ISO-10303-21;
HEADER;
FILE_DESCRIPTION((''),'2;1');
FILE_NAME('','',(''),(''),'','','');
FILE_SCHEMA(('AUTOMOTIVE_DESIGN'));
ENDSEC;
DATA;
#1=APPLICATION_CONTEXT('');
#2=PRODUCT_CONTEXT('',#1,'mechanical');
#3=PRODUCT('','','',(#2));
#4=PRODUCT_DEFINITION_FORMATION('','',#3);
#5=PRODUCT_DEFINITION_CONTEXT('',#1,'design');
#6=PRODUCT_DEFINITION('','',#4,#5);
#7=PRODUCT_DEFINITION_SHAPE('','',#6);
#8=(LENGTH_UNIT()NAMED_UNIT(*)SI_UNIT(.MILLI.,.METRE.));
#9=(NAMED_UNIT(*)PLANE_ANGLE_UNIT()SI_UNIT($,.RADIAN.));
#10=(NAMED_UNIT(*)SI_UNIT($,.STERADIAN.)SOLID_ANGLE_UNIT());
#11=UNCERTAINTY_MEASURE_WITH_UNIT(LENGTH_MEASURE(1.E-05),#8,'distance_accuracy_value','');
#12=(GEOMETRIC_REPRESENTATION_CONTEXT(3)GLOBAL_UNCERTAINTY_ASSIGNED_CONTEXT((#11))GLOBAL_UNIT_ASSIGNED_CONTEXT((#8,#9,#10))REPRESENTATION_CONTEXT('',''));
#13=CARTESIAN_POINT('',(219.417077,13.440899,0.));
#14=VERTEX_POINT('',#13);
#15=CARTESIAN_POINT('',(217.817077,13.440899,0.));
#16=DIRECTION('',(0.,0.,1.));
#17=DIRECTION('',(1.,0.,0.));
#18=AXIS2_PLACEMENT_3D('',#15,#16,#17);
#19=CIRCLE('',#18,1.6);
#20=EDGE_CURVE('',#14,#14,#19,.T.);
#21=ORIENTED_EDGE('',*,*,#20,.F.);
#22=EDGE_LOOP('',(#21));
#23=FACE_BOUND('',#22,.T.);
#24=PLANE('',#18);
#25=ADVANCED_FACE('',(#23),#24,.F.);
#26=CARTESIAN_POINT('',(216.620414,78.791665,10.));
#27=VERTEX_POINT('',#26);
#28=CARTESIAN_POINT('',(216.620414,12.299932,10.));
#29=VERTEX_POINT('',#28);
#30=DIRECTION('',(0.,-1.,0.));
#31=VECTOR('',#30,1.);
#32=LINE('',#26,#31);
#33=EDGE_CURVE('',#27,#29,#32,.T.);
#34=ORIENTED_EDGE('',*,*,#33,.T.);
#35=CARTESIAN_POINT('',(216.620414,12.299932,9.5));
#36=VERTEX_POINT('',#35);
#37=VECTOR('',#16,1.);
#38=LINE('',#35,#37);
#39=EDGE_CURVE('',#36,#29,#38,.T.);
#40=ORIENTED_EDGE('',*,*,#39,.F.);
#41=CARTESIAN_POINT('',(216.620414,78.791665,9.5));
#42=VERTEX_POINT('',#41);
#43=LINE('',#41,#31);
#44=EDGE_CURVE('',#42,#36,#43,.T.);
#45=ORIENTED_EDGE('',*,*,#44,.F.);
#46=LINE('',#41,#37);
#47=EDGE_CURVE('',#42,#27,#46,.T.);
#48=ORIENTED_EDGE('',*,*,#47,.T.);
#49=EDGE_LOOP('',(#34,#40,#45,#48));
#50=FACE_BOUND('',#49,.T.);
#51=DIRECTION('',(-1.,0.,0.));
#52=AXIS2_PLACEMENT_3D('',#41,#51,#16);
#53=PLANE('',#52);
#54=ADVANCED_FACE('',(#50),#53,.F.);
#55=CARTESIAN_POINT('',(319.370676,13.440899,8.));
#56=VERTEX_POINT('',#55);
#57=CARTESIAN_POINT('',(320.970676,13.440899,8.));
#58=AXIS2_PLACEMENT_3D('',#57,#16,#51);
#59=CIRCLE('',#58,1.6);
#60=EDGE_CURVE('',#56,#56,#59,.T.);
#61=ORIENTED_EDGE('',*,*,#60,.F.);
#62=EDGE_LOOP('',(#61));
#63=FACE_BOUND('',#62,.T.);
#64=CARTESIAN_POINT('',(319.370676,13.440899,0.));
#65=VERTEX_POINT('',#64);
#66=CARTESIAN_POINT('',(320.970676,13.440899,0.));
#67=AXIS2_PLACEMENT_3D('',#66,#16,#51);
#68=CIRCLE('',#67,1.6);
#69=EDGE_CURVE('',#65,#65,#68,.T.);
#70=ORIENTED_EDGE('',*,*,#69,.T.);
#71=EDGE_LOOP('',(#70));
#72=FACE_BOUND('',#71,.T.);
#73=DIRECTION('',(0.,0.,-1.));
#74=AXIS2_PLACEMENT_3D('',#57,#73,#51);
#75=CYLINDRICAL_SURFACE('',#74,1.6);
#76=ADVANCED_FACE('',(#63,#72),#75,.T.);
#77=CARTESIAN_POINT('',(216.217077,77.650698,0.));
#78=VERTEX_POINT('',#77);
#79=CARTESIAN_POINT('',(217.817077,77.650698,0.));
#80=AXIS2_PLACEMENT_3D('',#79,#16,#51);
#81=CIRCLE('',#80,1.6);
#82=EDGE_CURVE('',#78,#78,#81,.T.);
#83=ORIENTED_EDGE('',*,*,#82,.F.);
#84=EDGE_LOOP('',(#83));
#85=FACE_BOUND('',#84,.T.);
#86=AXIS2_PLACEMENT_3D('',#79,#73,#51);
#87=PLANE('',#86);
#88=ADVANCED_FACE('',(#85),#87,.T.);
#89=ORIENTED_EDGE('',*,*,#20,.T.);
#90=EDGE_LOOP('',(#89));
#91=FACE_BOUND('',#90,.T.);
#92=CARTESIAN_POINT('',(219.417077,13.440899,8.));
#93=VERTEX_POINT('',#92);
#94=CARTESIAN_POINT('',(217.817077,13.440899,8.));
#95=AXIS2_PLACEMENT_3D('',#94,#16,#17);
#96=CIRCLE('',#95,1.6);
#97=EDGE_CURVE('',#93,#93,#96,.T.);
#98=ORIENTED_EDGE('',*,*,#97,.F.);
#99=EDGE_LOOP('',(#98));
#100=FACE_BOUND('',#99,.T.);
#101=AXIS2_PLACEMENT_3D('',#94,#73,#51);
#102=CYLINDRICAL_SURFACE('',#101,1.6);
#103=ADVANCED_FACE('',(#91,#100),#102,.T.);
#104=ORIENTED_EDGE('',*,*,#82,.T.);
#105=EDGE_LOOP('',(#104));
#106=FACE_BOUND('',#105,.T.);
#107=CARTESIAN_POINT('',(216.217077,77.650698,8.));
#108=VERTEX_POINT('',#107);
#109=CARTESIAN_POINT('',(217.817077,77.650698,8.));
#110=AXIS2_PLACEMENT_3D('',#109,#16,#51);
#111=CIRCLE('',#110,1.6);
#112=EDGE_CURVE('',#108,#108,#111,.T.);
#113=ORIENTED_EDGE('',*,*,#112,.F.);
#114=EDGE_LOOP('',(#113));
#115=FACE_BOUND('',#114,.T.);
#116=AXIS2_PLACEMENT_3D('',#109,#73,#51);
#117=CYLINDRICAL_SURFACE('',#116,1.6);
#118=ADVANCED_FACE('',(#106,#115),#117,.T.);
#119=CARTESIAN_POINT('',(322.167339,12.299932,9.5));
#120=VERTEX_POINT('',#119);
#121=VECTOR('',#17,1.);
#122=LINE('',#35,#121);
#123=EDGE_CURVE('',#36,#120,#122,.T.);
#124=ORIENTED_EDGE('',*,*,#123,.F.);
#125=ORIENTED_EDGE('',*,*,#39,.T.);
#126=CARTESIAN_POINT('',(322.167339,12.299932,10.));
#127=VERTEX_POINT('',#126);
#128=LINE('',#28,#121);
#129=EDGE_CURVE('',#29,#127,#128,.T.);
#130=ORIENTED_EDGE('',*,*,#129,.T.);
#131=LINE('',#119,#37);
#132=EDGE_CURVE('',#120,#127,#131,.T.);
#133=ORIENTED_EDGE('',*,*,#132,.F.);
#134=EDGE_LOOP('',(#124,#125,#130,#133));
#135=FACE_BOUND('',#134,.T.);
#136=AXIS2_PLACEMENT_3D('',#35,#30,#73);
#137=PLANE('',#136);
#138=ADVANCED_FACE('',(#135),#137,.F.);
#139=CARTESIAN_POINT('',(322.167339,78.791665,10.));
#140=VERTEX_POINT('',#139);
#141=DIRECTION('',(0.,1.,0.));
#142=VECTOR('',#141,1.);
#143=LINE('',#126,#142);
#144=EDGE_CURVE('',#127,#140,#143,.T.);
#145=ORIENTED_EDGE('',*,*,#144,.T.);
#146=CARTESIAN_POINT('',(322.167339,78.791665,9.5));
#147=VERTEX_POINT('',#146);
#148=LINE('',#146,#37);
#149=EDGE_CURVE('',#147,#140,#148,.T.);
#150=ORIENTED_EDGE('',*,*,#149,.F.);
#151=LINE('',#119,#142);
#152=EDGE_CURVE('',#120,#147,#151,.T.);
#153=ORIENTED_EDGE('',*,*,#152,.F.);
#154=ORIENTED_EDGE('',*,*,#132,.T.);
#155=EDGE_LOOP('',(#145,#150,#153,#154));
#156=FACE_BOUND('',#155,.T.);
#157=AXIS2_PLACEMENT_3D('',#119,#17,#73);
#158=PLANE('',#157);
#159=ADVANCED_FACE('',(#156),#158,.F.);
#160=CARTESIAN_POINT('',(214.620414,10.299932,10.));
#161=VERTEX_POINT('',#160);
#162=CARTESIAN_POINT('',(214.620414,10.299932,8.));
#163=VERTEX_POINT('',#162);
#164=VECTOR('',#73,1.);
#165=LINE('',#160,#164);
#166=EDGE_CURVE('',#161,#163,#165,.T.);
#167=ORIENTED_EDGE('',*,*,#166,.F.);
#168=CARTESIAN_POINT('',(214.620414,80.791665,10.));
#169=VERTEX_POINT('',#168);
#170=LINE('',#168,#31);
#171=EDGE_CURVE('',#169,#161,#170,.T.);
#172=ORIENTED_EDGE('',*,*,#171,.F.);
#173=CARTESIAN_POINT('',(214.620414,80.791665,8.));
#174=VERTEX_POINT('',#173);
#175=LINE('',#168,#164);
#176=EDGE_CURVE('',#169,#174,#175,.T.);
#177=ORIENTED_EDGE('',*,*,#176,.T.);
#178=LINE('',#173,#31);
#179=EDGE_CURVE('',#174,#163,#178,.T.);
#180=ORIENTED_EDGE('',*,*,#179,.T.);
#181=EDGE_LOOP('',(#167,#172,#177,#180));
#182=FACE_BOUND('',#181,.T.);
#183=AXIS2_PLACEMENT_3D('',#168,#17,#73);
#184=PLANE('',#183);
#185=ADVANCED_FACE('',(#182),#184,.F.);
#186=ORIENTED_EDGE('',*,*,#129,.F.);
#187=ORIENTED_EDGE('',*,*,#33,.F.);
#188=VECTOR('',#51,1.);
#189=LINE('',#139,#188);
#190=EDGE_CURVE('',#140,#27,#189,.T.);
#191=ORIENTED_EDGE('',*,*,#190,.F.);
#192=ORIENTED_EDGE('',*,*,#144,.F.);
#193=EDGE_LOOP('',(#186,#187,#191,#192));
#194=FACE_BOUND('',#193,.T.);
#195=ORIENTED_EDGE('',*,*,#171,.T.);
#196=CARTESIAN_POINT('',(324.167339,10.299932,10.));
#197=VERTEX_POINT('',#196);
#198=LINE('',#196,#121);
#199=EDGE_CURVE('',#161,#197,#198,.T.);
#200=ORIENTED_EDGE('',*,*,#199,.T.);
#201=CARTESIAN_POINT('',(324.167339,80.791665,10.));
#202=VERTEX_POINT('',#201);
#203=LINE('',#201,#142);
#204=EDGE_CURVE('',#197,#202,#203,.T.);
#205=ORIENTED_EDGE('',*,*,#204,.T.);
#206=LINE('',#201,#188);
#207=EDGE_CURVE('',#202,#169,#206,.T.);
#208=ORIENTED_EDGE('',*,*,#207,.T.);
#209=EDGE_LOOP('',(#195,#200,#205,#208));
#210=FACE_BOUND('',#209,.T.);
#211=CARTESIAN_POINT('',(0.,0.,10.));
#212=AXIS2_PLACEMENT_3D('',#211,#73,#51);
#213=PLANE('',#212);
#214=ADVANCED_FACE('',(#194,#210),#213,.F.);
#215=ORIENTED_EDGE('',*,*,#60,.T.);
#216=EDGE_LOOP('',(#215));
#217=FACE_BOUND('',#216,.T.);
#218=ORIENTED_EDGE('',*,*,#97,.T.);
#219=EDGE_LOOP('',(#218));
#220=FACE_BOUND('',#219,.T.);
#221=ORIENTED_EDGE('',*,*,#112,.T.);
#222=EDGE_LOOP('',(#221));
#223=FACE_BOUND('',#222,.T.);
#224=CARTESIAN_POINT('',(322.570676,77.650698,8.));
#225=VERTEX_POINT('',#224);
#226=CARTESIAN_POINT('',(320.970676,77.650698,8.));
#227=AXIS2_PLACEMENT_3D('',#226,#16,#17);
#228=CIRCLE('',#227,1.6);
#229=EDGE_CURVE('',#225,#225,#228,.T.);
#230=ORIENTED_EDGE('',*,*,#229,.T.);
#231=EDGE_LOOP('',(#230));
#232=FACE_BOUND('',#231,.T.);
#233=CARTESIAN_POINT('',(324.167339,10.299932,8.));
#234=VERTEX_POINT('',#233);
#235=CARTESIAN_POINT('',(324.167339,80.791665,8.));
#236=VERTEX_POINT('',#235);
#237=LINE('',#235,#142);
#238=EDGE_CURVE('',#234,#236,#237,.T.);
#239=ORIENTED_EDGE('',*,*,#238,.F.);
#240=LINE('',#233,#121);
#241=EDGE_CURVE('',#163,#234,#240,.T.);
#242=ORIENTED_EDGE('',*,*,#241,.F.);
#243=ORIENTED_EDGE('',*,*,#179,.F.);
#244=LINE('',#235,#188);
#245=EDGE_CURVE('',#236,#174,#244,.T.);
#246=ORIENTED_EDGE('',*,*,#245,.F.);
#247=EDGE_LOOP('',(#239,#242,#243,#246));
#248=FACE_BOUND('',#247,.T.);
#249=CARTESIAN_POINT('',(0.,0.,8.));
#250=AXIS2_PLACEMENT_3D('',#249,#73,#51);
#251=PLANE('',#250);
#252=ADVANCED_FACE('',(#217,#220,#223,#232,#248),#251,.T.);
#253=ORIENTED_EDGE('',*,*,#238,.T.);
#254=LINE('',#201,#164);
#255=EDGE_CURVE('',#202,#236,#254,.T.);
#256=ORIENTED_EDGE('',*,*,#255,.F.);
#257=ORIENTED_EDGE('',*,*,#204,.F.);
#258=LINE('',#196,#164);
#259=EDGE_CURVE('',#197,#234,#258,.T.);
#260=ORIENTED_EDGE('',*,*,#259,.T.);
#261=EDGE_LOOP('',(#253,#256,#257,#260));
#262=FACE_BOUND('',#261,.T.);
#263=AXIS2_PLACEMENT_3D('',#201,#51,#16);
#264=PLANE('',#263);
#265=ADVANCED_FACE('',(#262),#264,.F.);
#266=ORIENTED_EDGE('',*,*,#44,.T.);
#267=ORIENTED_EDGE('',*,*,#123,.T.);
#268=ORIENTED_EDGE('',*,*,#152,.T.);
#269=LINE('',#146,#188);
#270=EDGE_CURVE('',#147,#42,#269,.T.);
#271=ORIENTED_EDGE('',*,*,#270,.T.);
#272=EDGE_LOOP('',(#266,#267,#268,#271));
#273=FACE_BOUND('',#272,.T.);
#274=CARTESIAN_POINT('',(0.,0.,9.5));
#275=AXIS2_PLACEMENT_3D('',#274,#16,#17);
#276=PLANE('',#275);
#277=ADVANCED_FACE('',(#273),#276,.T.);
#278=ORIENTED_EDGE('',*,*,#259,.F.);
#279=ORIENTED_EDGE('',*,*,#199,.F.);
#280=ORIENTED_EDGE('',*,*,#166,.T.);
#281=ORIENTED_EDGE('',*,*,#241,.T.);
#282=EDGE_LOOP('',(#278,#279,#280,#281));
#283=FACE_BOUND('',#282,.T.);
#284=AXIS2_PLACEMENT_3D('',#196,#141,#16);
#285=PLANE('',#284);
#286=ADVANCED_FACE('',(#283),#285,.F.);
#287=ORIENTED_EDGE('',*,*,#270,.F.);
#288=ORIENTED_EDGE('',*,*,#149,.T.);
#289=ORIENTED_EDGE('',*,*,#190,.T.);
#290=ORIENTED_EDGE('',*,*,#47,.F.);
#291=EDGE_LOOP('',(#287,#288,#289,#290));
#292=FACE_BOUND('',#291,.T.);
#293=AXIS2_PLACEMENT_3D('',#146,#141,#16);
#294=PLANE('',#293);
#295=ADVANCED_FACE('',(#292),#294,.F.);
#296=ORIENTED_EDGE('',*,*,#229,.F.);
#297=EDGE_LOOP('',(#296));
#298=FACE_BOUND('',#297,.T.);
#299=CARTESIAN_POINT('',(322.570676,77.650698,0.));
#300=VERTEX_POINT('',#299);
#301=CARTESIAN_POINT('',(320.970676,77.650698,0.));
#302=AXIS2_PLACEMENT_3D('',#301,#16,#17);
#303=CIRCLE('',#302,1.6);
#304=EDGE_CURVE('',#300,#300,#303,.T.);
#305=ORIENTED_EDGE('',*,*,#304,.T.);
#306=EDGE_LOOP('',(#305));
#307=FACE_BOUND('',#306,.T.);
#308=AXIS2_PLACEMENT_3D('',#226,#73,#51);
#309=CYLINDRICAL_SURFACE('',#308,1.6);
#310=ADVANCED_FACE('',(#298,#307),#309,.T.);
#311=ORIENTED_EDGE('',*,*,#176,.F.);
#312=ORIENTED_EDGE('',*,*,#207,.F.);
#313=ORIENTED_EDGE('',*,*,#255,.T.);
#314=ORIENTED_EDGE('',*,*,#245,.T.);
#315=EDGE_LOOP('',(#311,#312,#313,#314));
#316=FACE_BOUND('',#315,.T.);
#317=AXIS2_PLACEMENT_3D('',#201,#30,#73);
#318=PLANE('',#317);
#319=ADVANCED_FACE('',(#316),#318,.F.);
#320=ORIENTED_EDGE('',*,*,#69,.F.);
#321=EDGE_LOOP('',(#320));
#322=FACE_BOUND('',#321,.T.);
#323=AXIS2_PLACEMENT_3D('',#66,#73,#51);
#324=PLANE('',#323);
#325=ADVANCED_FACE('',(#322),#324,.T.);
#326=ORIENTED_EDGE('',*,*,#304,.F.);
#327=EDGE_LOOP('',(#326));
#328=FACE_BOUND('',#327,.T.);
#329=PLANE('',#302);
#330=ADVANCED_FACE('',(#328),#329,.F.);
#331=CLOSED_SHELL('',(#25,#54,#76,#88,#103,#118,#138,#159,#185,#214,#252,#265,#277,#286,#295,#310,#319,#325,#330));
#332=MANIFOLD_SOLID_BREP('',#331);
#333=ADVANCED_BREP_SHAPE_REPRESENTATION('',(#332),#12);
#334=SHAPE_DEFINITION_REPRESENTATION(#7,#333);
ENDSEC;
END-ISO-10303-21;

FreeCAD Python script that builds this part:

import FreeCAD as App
import Part
import Sketcher
from FreeCAD import Vector


def add_polygon(sketch, points):
    """Adds a closed chain of lines whose ends are joined by coincident constraints."""
    first, n = sketch.GeometryCount, len(points)
    for a, b in zip(points, points[1:] + points[:1]):
        sketch.addGeometry(Part.LineSegment(App.Vector(*a, 0), App.Vector(*b, 0)), False)
    for i in range(n):
        sketch.addConstraint(Sketcher.Constraint("Coincident", first + i, 2, first + (i + 1) % n, 1))

doc = App.newDocument("Part")
body = doc.addObject("PartDesign::Body", "Body")

sketch1 = body.newObject("Sketcher::SketchObject", "Sketch")
sketch1.AttachmentSupport = (doc.getObject("XY_Plane"), [""])
sketch1.MapMode = "FlatFace"
sketch1.addGeometry(Part.Circle(Vector(320.970676, 77.650698, 0), Vector(0, 0, 1), 1.6), False)
sketch1.addConstraint([
    Sketcher.Constraint("Diameter", 0, 3.2),
    Sketcher.Constraint("DistanceY", -1, 1, 0, 3, 77.650698),
    Sketcher.Constraint("DistanceX", -1, 1, 0, 3, 320.970676),
])
pad1 = body.newObject("PartDesign::Pad", "Pad")
pad1.Profile = sketch1
pad1.Length = 8
body2 = doc.addObject("PartDesign::Body", "Body001")

sketch2 = body2.newObject("Sketcher::SketchObject", "Sketch001")
sketch2.AttachmentSupport = (doc.getObject("XY_Plane001"), [""])
sketch2.MapMode = "FlatFace"
sketch2.addGeometry(Part.Circle(Vector(320.970676, 13.440899, 0), Vector(0, 0, 1), 1.6), False)
sketch2.addConstraint([
    Sketcher.Constraint("Diameter", 0, 3.2),
    Sketcher.Constraint("DistanceY", -1, 1, 0, 3, 13.440899),
    Sketcher.Constraint("DistanceX", -1, 1, 0, 3, 320.970676),
])
pad2 = body2.newObject("PartDesign::Pad", "Pad001")
pad2.Profile = sketch2
pad2.Length = 8
body3 = doc.addObject("PartDesign::Body", "Body002")

sketch3 = body3.newObject("Sketcher::SketchObject", "Sketch002")
sketch3.AttachmentSupport = (doc.getObject("XY_Plane002"), [""])
sketch3.MapMode = "FlatFace"
sketch3.addGeometry(Part.Circle(Vector(217.817077, 13.440899, 0), Vector(0, 0, 1), 1.6), False)
sketch3.addConstraint([
    Sketcher.Constraint("Diameter", 0, 3.2),
    Sketcher.Constraint("DistanceY", -1, 1, 0, 3, 13.440899),
    Sketcher.Constraint("DistanceX", -1, 1, 0, 3, 217.817077),
])
pad3 = body3.newObject("PartDesign::Pad", "Pad002")
pad3.Profile = sketch3
pad3.Length = 8
body4 = doc.addObject("PartDesign::Body", "Body003")

sketch4 = body4.newObject("Sketcher::SketchObject", "Sketch003")
sketch4.AttachmentSupport = (doc.getObject("XY_Plane003"), [""])
sketch4.MapMode = "FlatFace"
sketch4.addGeometry(Part.Circle(Vector(217.817077, 77.650698, 0), Vector(0, 0, 1), 1.6), False)
sketch4.addConstraint([
    Sketcher.Constraint("Diameter", 0, 3.2),
    Sketcher.Constraint("DistanceY", -1, 1, 0, 3, 77.650698),
    Sketcher.Constraint("DistanceX", -1, 1, 0, 3, 217.817077),
])
pad4 = body4.newObject("PartDesign::Pad", "Pad003")
pad4.Profile = sketch4
pad4.Length = 8
body.AllowCompound = True
doc.recompute()

boolean = body.newObject("PartDesign::Boolean", "Boolean")
boolean.Type = "Fuse"
boolean.addObjects([body2])
doc.recompute()

boolean2 = body.newObject("PartDesign::Boolean", "Boolean001")
boolean2.Type = "Fuse"
boolean2.addObjects([body3])
doc.recompute()

boolean3 = body.newObject("PartDesign::Boolean", "Boolean002")
boolean3.Type = "Fuse"
boolean3.addObjects([body4])

sketch5 = body.newObject("Sketcher::SketchObject", "Sketch004")
sketch5.AttachmentSupport = (doc.getObject("XY_Plane"), [""])
sketch5.MapMode = "FlatFace"
sketch5.AttachmentOffset = App.Placement(Vector(0, 0, 8), App.Rotation())
add_polygon(sketch5, [(214.620414, 80.791665), (214.620414, 10.299932), (324.167339, 10.299932), (324.167339, 80.791665)])
sketch5.addConstraint([
    Sketcher.Constraint("Vertical", 0),
    Sketcher.Constraint("Horizontal", 1),
    Sketcher.Constraint("Vertical", 2),
    Sketcher.Constraint("Horizontal", 3),
    Sketcher.Constraint("DistanceX", 1, 1, 1, 2, 109.546925),
    Sketcher.Constraint("DistanceY", 0, 2, 0, 1, 70.491733),
    Sketcher.Constraint("DistanceX", -1, 1, 1, 2, 324.167339),
    Sketcher.Constraint("DistanceY", -1, 1, 0, 2, 10.299932),
])
pad5 = body.newObject("PartDesign::Pad", "Pad004")
pad5.Profile = sketch5
pad5.Length = 2

sketch6 = body.newObject("Sketcher::SketchObject", "Sketch005")
sketch6.AttachmentSupport = (doc.getObject("XY_Plane"), [""])
sketch6.MapMode = "FlatFace"
sketch6.AttachmentOffset = App.Placement(Vector(0, 0, 10), App.Rotation())
add_polygon(sketch6, [(216.620414, 78.791665), (216.620414, 12.299932), (322.167339, 12.299932), (322.167339, 78.791665)])
sketch6.addConstraint([
    Sketcher.Constraint("Vertical", 0),
    Sketcher.Constraint("Horizontal", 1),
    Sketcher.Constraint("Vertical", 2),
    Sketcher.Constraint("Horizontal", 3),
    Sketcher.Constraint("DistanceX", 1, 1, 1, 2, 105.546925),
    Sketcher.Constraint("DistanceY", 0, 2, 0, 1, 66.491733),
    Sketcher.Constraint("DistanceX", -1, 1, 1, 2, 322.167339),
    Sketcher.Constraint("DistanceY", -1, 1, 0, 2, 12.299932),
])
pocket1 = body.newObject("PartDesign::Pocket", "Pocket")
pocket1.Profile = sketch6
pocket1.Length = 0.5

doc.recompute()
